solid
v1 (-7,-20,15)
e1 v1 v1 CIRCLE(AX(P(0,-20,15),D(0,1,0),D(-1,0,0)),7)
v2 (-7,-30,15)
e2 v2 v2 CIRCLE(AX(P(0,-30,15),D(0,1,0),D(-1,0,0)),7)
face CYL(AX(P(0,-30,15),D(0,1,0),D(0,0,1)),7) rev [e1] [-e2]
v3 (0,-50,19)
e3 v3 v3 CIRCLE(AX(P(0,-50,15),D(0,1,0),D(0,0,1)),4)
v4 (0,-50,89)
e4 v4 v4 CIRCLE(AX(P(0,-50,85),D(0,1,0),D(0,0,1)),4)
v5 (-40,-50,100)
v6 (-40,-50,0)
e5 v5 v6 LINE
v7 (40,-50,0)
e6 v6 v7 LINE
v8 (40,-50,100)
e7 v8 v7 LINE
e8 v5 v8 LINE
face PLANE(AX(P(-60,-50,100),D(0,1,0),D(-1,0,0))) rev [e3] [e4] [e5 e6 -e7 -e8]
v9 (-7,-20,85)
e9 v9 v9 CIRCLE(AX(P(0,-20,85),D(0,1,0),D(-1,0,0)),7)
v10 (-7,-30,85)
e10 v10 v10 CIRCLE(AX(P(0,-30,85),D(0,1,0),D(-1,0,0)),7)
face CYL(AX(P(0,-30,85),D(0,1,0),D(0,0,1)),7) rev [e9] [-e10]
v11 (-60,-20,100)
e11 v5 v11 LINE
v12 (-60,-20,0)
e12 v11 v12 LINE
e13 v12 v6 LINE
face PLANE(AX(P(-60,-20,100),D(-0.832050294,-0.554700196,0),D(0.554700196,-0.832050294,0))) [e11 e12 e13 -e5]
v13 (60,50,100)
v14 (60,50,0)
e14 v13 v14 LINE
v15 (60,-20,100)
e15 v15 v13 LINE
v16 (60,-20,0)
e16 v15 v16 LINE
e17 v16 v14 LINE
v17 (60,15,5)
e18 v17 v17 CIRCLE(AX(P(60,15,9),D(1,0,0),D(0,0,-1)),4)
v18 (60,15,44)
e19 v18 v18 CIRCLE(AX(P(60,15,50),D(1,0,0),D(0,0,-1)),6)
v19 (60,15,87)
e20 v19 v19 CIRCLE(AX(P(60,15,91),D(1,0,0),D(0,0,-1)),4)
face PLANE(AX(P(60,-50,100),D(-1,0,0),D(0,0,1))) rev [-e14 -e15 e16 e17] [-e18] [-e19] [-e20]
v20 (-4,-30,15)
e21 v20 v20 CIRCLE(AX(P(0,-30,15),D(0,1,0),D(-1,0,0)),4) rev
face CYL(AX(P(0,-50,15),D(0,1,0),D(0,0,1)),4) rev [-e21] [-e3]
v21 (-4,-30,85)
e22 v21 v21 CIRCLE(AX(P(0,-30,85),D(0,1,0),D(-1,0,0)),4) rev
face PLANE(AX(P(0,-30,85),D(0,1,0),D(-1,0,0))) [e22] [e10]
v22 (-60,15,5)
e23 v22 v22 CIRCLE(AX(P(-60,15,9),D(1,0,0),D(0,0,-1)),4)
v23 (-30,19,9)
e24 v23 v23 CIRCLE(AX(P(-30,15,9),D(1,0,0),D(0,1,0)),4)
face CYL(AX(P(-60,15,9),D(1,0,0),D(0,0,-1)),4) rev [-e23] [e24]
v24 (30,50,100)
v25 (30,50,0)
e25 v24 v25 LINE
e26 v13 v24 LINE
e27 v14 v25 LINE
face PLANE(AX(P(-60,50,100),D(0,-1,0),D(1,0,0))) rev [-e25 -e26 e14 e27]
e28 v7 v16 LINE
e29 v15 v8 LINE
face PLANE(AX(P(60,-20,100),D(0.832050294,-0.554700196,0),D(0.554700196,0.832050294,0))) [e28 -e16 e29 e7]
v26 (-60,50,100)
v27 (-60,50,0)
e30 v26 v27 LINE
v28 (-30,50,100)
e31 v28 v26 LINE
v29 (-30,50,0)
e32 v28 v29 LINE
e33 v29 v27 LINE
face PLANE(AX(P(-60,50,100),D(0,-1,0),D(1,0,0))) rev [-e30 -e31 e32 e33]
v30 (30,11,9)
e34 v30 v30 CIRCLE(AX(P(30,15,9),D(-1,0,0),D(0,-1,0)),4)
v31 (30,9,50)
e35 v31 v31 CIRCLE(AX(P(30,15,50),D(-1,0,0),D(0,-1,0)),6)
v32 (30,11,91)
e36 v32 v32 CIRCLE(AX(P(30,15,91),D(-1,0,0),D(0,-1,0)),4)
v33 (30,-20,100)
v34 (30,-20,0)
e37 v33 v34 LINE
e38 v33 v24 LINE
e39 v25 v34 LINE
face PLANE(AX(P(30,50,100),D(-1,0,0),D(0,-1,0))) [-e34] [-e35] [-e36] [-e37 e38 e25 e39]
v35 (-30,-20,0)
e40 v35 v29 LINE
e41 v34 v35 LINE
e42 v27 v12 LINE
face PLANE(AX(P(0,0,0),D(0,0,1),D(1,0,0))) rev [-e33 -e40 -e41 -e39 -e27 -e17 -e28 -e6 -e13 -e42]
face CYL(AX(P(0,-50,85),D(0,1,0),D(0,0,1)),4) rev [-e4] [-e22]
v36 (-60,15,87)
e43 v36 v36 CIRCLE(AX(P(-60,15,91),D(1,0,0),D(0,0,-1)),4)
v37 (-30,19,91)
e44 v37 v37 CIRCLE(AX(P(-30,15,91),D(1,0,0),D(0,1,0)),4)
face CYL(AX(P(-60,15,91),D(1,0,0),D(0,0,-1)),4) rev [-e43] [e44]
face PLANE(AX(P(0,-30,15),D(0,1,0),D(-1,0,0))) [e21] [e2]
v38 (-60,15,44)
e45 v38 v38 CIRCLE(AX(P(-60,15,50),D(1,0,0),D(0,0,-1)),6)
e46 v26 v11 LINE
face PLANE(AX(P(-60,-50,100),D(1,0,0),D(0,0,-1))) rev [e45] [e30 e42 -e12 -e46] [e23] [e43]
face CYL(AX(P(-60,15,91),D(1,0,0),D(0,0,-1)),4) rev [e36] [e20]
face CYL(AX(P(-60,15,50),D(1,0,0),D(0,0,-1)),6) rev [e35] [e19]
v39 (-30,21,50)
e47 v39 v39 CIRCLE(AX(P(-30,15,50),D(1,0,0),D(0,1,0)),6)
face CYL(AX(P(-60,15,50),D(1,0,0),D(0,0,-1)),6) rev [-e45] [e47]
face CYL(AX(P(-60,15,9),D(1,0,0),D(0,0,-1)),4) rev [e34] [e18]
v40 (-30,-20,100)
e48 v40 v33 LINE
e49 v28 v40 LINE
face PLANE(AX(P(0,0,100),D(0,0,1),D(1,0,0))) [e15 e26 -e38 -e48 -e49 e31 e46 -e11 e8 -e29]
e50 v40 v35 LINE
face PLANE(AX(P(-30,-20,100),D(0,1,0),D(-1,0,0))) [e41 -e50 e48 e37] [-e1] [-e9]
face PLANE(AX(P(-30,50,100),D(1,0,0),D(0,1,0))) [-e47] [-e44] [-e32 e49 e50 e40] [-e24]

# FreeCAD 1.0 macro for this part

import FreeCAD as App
import Part
import Sketcher

V = App.Vector
Q = App.Units.Quantity


def add_polygon(sketch, points):
    """Adds a closed chain of lines whose ends are joined by coincident constraints."""
    first, n = sketch.GeometryCount, len(points)
    for a, b in zip(points, points[1:] + points[:1]):
        sketch.addGeometry(Part.LineSegment(App.Vector(*a, 0), App.Vector(*b, 0)), False)
    for i in range(n):
        sketch.addConstraint(Sketcher.Constraint("Coincident", first + i, 2, first + (i + 1) % n, 1))

doc = App.newDocument("Part")
body = doc.addObject("PartDesign::Body", "Body")

# Sketch on XY plane
sketch1 = body.newObject("Sketcher::SketchObject", "Sketch")
sketch1.AttachmentSupport = (doc.getObject("XY_Plane"), [""])
sketch1.MapMode = "FlatFace"
add_polygon(sketch1, [(-60, 50), (-60, -50), (60, -50), (60, 50)])  # lines 0-3
sketch1.addConstraint([
    Sketcher.Constraint("Vertical", 0),
    Sketcher.Constraint("Horizontal", 1),
    Sketcher.Constraint("Vertical", 2),
    Sketcher.Constraint("Horizontal", 3),
    Sketcher.Constraint("Symmetric", 0, 2, 2, 2, -1, 1),
    Sketcher.Constraint("DistanceX", 1, 1, 1, 2, Q("120 mm")),
    Sketcher.Constraint("DistanceY", 0, 2, 0, 1, Q("100 mm")),
])
pad1 = body.newObject("PartDesign::Pad", "Pad")
pad1.Profile = sketch1
pad1.Length = 100

# Sketch on XY plane
sketch2 = body.newObject("Sketcher::SketchObject", "Sketch001")
sketch2.AttachmentSupport = (doc.getObject("XY_Plane"), [""])
sketch2.MapMode = "FlatFace"
add_polygon(sketch2, [(-40, -50), (-60, -20), (-60, -50)])  # lines 0-2
add_polygon(sketch2, [(-30, 50), (-30, -20), (30, -20), (30, 50)])  # lines 3-6
add_polygon(sketch2, [(40, -50), (60, -50), (60, -20)])  # lines 7-9
sketch2.addConstraint([
    Sketcher.Constraint("Vertical", 1),
    Sketcher.Constraint("Horizontal", 2),
    Sketcher.Constraint("Vertical", 3),
    Sketcher.Constraint("Horizontal", 4),
    Sketcher.Constraint("Vertical", 5),
    Sketcher.Constraint("Horizontal", 6),
    Sketcher.Constraint("Horizontal", 7),
    Sketcher.Constraint("Vertical", 8),
    Sketcher.Constraint("Symmetric", 1, 2, 7, 2, -2),
    Sketcher.Constraint("Horizontal", 0, 2, 3, 2),
    Sketcher.Constraint("Horizontal", 4, 2, 8, 2),
    Sketcher.Constraint("Equal", 2, 7),
    Sketcher.Constraint("DistanceX", 2, 1, 2, 2, Q("20 mm")),
    Sketcher.Constraint("DistanceX", 4, 1, 4, 2, Q("60 mm")),
    Sketcher.Constraint("DistanceY", 1, 2, 1, 1, Q("30 mm")),
    Sketcher.Constraint("DistanceY", 3, 2, 3, 1, Q("70 mm")),
    Sketcher.Constraint("DistanceX", 0, 2, -1, 1, Q("60 mm")),
    Sketcher.Constraint("DistanceY", 0, 2, -1, 1, Q("20 mm")),
    Sketcher.Constraint("DistanceX", 3, 2, -1, 1, Q("30 mm")),
])
pocket1 = body.newObject("PartDesign::Pocket", "Pocket")
pocket1.Profile = sketch2
pocket1.Type = "ThroughAll"
pocket1.Midplane = True

# Sketch on XZ plane
sketch3 = body.newObject("Sketcher::SketchObject", "Sketch002")
sketch3.AttachmentSupport = (doc.getObject("XZ_Plane"), [""])
sketch3.MapMode = "FlatFace"
sketch3.addGeometry([
    Part.Circle(V(0, 85, 0), V(0, 0, 1), 4),
    Part.Circle(V(0, 15, 0), V(0, 0, 1), 4),
], False)
sketch3.addConstraint([
    Sketcher.Constraint("Equal", 0, 1),
    Sketcher.Constraint("PointOnObject", 0, 3, -2),
    Sketcher.Constraint("PointOnObject", 1, 3, -2),
    Sketcher.Constraint("Diameter", 0, Q("8 mm")),
    Sketcher.Constraint("DistanceY", -1, 1, 0, 3, Q("85 mm")),
    Sketcher.Constraint("DistanceY", -1, 1, 1, 3, Q("15 mm")),
])
pocket2 = body.newObject("PartDesign::Pocket", "Pocket001")
pocket2.Profile = sketch3
pocket2.Type = "ThroughAll"
pocket2.Midplane = True

# Sketch on YZ plane
sketch4 = body.newObject("Sketcher::SketchObject", "Sketch003")
sketch4.AttachmentSupport = (doc.getObject("YZ_Plane"), [""])
sketch4.MapMode = "FlatFace"
sketch4.addGeometry([
    Part.Circle(V(15, 91, 0), V(0, 0, 1), 4),
    Part.Circle(V(15, 9, 0), V(0, 0, 1), 4),
], False)
sketch4.addConstraint([
    Sketcher.Constraint("Equal", 0, 1),
    Sketcher.Constraint("Vertical", 0, 3, 1, 3),
    Sketcher.Constraint("Diameter", 0, Q("8 mm")),
    Sketcher.Constraint("DistanceX", -1, 1, 0, 3, Q("15 mm")),
    Sketcher.Constraint("DistanceY", -1, 1, 0, 3, Q("91 mm")),
    Sketcher.Constraint("DistanceY", -1, 1, 1, 3, Q("9 mm")),
])
pocket3 = body.newObject("PartDesign::Pocket", "Pocket002")
pocket3.Profile = sketch4
pocket3.Type = "ThroughAll"
pocket3.Midplane = True

# Sketch on YZ plane
sketch5 = body.newObject("Sketcher::SketchObject", "Sketch004")
sketch5.AttachmentSupport = (doc.getObject("YZ_Plane"), [""])
sketch5.MapMode = "FlatFace"
sketch5.addGeometry(Part.Circle(V(15, 50, 0), V(0, 0, 1), 6), False)
sketch5.addConstraint([
    Sketcher.Constraint("Diameter", 0, Q("12 mm")),
    Sketcher.Constraint("DistanceX", -1, 1, 0, 3, Q("15 mm")),
    Sketcher.Constraint("DistanceY", -1, 1, 0, 3, Q("50 mm")),
])
pocket4 = body.newObject("PartDesign::Pocket", "Pocket003")
pocket4.Profile = sketch5
pocket4.Type = "ThroughAll"
pocket4.Midplane = True

# Sketch on XZ plane
sketch6 = body.newObject("Sketcher::SketchObject", "Sketch005")
sketch6.AttachmentSupport = (doc.getObject("XZ_Plane"), [""])
sketch6.MapMode = "FlatFace"
sketch6.AttachmentOffset = App.Placement(V(0, 0, 20), App.Rotation())
sketch6.addGeometry([
    Part.Circle(V(0, 85, 0), V(0, 0, 1), 7),
    Part.Circle(V(0, 15, 0), V(0, 0, 1), 7),
], False)
sketch6.addConstraint([
    Sketcher.Constraint("Equal", 0, 1),
    Sketcher.Constraint("PointOnObject", 0, 3, -2),
    Sketcher.Constraint("PointOnObject", 1, 3, -2),
    Sketcher.Constraint("Diameter", 0, Q("14 mm")),
    Sketcher.Constraint("DistanceY", -1, 1, 0, 3, Q("85 mm")),
    Sketcher.Constraint("DistanceY", -1, 1, 1, 3, Q("15 mm")),
])
pocket5 = body.newObject("PartDesign::Pocket", "Pocket004")
pocket5.Profile = sketch6
pocket5.Length = 10
pocket5.Reversed = True

doc.recompute()
